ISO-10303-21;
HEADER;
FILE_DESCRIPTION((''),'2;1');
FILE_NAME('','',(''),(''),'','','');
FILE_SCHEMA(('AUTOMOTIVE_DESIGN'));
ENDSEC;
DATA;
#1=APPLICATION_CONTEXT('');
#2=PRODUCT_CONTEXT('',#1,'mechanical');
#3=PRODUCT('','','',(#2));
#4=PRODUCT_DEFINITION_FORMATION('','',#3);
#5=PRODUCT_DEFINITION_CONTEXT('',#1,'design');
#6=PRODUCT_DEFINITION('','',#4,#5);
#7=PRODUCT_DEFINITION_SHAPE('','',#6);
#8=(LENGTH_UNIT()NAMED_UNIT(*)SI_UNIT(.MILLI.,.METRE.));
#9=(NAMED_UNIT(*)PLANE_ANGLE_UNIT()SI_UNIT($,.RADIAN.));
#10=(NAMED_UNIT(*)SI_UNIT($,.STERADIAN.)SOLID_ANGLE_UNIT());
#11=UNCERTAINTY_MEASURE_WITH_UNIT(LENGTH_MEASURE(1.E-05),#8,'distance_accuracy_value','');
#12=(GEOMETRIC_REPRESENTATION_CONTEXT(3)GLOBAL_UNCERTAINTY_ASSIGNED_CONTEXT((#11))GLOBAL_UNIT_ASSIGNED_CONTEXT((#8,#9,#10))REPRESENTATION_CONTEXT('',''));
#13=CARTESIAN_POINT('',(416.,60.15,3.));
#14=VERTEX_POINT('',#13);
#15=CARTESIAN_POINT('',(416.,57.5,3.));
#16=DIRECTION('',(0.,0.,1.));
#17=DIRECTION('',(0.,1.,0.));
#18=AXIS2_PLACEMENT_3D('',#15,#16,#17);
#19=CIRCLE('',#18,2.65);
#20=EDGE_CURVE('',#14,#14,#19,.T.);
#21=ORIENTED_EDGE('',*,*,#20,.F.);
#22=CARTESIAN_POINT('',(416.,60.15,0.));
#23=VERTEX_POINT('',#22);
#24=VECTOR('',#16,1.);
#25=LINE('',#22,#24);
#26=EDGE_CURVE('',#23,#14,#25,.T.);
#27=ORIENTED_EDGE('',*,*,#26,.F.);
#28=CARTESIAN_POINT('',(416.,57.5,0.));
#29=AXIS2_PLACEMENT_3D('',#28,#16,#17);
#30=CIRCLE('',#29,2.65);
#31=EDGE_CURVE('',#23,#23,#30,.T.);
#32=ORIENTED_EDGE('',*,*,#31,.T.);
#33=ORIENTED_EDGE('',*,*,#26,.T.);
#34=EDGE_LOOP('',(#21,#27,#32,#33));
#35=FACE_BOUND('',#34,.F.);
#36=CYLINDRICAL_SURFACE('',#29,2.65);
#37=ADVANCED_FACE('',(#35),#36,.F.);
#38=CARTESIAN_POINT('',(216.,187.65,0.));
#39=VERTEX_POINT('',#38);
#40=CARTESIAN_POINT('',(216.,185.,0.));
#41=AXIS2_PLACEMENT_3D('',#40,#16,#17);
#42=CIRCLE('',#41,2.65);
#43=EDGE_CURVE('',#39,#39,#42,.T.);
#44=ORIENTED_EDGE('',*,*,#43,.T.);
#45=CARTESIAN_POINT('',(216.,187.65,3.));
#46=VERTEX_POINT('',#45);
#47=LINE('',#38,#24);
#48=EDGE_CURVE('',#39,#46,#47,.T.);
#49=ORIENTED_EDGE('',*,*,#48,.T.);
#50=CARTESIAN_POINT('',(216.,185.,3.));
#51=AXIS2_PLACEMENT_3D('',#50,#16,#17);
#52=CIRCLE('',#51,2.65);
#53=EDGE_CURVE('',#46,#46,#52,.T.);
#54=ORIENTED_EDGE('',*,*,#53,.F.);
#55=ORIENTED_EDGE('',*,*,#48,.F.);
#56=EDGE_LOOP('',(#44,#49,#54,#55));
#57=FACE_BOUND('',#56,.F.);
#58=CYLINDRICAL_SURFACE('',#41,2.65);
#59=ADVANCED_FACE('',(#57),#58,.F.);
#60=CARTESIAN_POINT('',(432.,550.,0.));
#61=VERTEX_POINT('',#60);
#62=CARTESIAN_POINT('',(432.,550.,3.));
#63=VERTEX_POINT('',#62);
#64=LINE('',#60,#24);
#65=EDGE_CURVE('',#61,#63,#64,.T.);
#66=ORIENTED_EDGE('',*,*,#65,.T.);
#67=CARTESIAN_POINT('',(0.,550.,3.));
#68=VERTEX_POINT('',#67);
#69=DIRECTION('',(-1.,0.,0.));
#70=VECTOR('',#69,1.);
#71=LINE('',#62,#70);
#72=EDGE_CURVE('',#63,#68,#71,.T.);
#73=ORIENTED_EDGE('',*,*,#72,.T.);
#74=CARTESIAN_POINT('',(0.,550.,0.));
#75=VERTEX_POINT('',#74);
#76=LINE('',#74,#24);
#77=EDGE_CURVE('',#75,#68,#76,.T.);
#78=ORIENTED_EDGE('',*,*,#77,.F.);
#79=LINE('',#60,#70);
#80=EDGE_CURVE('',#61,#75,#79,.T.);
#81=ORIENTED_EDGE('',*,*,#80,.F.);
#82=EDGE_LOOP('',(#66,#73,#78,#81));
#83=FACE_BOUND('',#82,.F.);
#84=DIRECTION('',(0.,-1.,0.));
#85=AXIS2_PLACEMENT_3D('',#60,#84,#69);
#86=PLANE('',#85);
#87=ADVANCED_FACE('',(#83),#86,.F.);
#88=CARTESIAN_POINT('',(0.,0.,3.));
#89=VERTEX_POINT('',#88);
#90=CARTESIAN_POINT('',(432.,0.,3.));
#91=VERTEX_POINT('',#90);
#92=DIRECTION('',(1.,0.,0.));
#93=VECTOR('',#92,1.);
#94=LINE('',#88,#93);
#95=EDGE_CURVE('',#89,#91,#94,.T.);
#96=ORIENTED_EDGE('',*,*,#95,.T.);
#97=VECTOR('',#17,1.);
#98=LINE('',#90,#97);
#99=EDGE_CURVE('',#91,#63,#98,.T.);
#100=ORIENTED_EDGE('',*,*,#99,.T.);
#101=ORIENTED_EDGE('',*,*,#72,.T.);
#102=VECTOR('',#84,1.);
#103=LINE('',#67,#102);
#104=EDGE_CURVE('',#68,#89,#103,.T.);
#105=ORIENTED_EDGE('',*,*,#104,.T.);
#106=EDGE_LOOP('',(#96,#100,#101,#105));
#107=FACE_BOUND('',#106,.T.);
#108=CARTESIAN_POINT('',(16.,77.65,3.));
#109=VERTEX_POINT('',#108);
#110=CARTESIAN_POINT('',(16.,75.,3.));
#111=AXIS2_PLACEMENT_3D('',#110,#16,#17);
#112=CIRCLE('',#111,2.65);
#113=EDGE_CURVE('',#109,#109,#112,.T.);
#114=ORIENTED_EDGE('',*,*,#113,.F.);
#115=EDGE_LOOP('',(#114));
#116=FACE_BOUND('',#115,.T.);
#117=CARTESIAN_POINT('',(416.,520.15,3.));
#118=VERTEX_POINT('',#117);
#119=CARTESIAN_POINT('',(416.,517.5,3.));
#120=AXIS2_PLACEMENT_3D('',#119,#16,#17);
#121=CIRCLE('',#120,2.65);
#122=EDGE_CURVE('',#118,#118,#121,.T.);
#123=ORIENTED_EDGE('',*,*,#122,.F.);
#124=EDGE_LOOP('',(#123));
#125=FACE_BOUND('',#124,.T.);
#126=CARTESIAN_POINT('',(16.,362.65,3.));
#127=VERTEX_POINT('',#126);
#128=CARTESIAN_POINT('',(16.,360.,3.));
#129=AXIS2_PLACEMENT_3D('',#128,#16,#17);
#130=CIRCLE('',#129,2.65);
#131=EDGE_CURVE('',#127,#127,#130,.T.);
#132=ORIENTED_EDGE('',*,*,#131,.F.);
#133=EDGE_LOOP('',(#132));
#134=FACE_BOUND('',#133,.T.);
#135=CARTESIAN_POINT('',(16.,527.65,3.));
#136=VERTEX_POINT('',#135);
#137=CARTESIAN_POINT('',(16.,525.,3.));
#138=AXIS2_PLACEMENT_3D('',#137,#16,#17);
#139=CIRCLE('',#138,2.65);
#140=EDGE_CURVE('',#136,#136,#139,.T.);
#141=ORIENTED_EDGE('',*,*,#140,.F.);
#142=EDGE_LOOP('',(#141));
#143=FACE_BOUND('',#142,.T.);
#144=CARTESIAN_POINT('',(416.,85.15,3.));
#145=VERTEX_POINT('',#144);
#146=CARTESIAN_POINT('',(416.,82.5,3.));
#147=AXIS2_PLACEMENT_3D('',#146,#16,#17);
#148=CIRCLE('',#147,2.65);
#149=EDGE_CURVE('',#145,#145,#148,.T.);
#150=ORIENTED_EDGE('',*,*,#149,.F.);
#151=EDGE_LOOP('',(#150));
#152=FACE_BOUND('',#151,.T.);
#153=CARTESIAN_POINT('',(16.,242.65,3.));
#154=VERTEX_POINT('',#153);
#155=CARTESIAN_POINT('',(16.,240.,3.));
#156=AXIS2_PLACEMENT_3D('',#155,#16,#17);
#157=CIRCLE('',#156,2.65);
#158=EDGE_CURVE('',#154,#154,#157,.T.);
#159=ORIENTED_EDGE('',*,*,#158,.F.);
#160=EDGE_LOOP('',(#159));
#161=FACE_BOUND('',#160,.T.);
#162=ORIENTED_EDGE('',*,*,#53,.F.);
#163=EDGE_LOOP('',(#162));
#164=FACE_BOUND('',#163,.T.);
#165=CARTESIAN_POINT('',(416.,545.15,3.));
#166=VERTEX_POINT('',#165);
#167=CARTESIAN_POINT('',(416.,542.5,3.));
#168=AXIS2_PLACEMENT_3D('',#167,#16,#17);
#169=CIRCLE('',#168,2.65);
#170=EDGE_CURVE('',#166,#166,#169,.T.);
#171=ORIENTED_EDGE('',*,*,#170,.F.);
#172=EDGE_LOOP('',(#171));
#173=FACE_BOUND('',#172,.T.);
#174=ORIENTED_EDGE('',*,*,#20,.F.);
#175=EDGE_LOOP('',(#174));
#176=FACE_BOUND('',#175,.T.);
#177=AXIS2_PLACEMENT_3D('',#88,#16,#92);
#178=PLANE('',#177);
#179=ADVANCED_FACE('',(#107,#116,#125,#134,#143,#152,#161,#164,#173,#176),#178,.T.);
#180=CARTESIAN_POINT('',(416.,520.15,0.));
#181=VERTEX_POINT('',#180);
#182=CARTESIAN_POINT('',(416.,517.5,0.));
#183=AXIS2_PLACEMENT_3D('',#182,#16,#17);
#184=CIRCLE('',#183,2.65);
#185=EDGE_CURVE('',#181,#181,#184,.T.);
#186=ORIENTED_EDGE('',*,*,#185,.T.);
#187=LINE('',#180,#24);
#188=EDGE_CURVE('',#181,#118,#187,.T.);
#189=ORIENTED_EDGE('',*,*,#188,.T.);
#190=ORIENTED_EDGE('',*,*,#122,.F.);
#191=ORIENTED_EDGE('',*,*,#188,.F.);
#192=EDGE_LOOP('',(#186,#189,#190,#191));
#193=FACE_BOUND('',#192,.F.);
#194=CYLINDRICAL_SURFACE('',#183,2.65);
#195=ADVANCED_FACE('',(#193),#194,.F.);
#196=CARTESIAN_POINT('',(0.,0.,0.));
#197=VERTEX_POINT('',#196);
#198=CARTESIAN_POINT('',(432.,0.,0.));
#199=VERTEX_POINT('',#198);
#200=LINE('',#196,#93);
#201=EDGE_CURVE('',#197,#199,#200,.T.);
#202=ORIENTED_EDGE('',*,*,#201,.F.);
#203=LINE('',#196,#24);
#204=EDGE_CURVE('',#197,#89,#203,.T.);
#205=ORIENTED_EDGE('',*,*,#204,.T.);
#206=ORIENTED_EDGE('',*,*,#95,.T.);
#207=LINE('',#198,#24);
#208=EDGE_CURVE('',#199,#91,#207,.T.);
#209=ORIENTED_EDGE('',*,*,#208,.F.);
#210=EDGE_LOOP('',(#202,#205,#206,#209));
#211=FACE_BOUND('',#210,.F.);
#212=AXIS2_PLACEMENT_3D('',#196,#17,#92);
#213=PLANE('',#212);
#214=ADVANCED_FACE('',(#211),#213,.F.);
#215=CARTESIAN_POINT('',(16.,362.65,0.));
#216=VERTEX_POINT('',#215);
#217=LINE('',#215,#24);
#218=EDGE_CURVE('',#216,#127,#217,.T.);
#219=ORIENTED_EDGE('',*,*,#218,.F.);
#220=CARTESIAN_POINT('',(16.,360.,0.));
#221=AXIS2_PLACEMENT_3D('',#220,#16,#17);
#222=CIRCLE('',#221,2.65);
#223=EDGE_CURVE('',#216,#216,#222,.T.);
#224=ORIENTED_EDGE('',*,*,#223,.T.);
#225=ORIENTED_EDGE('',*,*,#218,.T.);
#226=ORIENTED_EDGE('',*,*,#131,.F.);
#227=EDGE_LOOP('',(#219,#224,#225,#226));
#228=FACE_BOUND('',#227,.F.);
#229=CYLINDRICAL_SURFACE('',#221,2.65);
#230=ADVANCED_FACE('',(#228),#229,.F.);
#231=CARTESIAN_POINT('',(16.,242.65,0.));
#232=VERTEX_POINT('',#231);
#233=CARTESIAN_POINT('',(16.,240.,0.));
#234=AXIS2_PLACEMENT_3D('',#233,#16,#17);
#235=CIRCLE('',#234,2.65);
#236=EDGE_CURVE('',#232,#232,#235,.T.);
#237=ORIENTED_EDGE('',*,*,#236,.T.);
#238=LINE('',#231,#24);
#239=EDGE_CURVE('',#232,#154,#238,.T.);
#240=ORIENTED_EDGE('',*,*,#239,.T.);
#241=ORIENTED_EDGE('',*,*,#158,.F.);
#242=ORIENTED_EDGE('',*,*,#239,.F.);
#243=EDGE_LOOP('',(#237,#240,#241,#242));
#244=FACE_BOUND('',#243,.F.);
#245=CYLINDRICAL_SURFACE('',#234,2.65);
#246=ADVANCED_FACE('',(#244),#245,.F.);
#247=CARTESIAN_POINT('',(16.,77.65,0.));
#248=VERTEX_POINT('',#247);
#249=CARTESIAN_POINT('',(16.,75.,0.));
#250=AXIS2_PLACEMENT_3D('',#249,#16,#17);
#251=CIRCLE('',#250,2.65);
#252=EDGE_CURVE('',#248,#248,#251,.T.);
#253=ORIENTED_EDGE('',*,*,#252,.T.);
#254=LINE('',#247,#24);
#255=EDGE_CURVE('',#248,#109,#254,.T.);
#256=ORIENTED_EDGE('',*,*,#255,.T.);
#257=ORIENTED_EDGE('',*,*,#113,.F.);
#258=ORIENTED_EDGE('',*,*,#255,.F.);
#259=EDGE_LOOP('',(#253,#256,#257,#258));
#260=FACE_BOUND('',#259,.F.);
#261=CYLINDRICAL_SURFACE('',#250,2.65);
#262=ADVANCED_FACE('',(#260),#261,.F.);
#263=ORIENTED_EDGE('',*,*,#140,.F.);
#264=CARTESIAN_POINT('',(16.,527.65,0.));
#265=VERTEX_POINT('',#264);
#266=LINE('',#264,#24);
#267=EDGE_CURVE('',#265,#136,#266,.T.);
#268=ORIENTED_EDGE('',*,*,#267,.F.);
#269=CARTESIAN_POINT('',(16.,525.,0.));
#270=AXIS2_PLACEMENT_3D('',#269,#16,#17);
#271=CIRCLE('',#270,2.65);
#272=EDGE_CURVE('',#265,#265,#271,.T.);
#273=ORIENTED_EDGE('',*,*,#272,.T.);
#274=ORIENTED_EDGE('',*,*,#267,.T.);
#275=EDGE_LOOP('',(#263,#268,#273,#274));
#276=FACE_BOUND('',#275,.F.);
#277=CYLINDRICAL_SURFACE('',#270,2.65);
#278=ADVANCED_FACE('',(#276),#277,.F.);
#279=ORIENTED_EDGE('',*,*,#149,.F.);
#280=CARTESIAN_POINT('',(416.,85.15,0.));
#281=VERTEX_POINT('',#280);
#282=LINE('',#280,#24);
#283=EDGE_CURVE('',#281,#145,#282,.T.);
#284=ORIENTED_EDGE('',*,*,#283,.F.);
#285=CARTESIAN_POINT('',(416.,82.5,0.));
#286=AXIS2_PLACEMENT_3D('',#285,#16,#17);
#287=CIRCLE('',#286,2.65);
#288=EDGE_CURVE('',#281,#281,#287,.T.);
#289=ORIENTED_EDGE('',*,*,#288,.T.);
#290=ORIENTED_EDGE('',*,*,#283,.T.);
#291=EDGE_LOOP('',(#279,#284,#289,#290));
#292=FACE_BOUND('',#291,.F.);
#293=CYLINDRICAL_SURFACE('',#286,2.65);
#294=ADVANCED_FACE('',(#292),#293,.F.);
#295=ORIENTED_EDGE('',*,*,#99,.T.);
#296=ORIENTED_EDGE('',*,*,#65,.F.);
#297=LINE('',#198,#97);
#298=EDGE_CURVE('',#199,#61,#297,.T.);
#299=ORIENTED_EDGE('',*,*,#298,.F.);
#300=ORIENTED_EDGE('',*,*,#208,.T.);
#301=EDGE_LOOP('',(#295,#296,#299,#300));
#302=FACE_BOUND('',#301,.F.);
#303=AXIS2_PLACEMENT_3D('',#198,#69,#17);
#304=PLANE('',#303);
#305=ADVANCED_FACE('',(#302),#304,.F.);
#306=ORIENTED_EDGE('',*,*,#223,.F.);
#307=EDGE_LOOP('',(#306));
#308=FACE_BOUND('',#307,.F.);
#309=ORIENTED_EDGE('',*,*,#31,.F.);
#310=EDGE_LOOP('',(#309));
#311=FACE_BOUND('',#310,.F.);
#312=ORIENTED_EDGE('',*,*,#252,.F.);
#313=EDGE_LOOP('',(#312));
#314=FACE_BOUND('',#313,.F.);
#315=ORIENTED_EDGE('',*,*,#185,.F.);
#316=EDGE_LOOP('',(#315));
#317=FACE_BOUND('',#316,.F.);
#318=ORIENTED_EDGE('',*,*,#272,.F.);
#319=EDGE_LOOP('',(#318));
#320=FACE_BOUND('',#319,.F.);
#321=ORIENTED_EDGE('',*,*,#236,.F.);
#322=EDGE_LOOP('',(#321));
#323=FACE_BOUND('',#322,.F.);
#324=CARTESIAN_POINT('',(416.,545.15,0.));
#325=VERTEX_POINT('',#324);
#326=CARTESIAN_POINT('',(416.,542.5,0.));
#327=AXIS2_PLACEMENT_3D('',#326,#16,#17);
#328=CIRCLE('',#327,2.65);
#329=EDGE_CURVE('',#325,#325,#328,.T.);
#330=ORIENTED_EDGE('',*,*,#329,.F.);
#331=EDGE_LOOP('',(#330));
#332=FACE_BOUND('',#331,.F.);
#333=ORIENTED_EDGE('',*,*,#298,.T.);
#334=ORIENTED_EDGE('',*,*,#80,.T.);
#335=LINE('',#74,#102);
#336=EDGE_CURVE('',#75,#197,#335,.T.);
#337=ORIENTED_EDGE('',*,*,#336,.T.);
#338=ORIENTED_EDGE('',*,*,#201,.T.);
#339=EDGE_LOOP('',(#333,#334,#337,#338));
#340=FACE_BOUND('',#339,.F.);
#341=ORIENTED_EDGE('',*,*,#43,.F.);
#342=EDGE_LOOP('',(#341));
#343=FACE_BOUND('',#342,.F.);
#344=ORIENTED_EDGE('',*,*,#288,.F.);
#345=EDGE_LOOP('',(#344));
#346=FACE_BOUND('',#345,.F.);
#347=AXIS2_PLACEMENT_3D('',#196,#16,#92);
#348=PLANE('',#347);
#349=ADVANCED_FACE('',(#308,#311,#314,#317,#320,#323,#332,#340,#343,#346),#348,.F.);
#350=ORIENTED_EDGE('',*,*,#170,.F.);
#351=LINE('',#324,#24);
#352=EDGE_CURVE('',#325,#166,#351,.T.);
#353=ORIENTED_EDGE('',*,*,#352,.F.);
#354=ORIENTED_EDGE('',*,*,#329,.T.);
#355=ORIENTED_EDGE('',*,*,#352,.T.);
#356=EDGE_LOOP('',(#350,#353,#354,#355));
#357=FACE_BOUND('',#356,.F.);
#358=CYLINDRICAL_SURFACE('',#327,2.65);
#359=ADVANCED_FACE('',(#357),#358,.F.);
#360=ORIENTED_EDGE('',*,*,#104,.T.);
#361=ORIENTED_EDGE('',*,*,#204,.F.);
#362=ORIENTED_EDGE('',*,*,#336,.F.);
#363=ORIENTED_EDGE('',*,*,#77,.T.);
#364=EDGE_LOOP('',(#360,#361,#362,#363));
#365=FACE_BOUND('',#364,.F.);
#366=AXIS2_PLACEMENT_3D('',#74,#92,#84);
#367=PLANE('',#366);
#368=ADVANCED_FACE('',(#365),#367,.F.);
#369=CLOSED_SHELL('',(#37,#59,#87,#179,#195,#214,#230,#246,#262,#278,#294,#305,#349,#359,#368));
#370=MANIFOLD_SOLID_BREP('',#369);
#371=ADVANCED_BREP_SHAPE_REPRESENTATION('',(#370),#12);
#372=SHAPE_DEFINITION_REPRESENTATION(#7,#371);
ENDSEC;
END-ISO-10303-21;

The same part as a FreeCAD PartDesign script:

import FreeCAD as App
import Part
import Sketcher


def add_polygon(sketch, points):
    """Adds a closed chain of lines whose ends are joined by coincident constraints."""
    first, n = sketch.GeometryCount, len(points)
    for a, b in zip(points, points[1:] + points[:1]):
        sketch.addGeometry(Part.LineSegment(App.Vector(*a, 0), App.Vector(*b, 0)), False)
    for i in range(n):
        sketch.addConstraint(Sketcher.Constraint("Coincident", first + i, 2, first + (i + 1) % n, 1))

doc = App.newDocument("Part")
body = doc.addObject("PartDesign::Body", "Body")

# Sketch on XY plane
sketch1 = body.newObject("Sketcher::SketchObject", "Sketch")
sketch1.AttachmentSupport = (doc.getObject("XY_Plane"), [""])
sketch1.MapMode = "FlatFace"
add_polygon(sketch1, [(0, 550), (0, 0), (432, 0), (432, 550)])  # lines 0-3
sketch1.addConstraint(Sketcher.Constraint("Vertical", 0))
sketch1.addConstraint(Sketcher.Constraint("Horizontal", 1))
sketch1.addConstraint(Sketcher.Constraint("Vertical", 2))
sketch1.addConstraint(Sketcher.Constraint("Horizontal", 3))
sketch1.addConstraint(Sketcher.Constraint("Coincident", 0, 2, -1, 1))
sketch1.addConstraint(Sketcher.Constraint("DistanceX", 1, 1, 1, 2, 432.0))
sketch1.addConstraint(Sketcher.Constraint("DistanceY", 0, 2, 0, 1, 550.0))
pad1 = body.newObject("PartDesign::Pad", "Pad")
pad1.Profile = sketch1
pad1.Length = 3

# Sketch on XY plane
sketch2 = body.newObject("Sketcher::SketchObject", "Sketch001")
sketch2.AttachmentSupport = (doc.getObject("XY_Plane"), [""])
sketch2.MapMode = "FlatFace"
sketch2.addGeometry(Part.Circle(App.Vector(416, 542.5, 0), App.Vector(0, 0, 1), 2.65), False)
sketch2.addGeometry(Part.Circle(App.Vector(416, 517.5, 0), App.Vector(0, 0, 1), 2.65), False)
sketch2.addGeometry(Part.Circle(App.Vector(416, 82.5, 0), App.Vector(0, 0, 1), 2.65), False)
sketch2.addGeometry(Part.Circle(App.Vector(416, 57.5, 0), App.Vector(0, 0, 1), 2.65), False)
sketch2.addGeometry(Part.Circle(App.Vector(16, 360, 0), App.Vector(0, 0, 1), 2.65), False)
sketch2.addGeometry(Part.Circle(App.Vector(16, 240, 0), App.Vector(0, 0, 1), 2.65), False)
sketch2.addGeometry(Part.Circle(App.Vector(216, 185, 0), App.Vector(0, 0, 1), 2.65), False)
sketch2.addGeometry(Part.Circle(App.Vector(16, 525, 0), App.Vector(0, 0, 1), 2.65), False)
sketch2.addGeometry(Part.Circle(App.Vector(16, 75, 0), App.Vector(0, 0, 1), 2.65), False)
sketch2.addConstraint(Sketcher.Constraint("Equal", 0, 1))
sketch2.addConstraint(Sketcher.Constraint("Equal", 1, 2))
sketch2.addConstraint(Sketcher.Constraint("Equal", 2, 3))
sketch2.addConstraint(Sketcher.Constraint("Equal", 3, 4))
sketch2.addConstraint(Sketcher.Constraint("Equal", 4, 5))
sketch2.addConstraint(Sketcher.Constraint("Equal", 5, 6))
sketch2.addConstraint(Sketcher.Constraint("Equal", 6, 7))
sketch2.addConstraint(Sketcher.Constraint("Equal", 7, 8))
sketch2.addConstraint(Sketcher.Constraint("Vertical", 0, 3, 1, 3))
sketch2.addConstraint(Sketcher.Constraint("Vertical", 1, 3, 2, 3))
sketch2.addConstraint(Sketcher.Constraint("Vertical", 2, 3, 3, 3))
sketch2.addConstraint(Sketcher.Constraint("Vertical", 4, 3, 5, 3))
sketch2.addConstraint(Sketcher.Constraint("Vertical", 5, 3, 7, 3))
sketch2.addConstraint(Sketcher.Constraint("Vertical", 7, 3, 8, 3))
sketch2.addConstraint(Sketcher.Constraint("Diameter", 0, 5.3))
sketch2.addConstraint(Sketcher.Constraint("DistanceX", -1, 1, 0, 3, 416.0))
sketch2.addConstraint(Sketcher.Constraint("DistanceX", -1, 1, 4, 3, 16.0))
sketch2.addConstraint(Sketcher.Constraint("DistanceY", -1, 1, 4, 3, 360.0))
sketch2.addConstraint(Sketcher.Constraint("DistanceY", -1, 1, 5, 3, 240.0))
sketch2.addConstraint(Sketcher.Constraint("DistanceX", -1, 1, 6, 3, 216.0))
sketch2.addConstraint(Sketcher.Constraint("DistanceY", -1, 1, 6, 3, 185.0))
sketch2.addConstraint(Sketcher.Constraint("DistanceY", -1, 1, 7, 3, 525.0))
sketch2.addConstraint(Sketcher.Constraint("DistanceY", -1, 1, 8, 3, 75.0))
sketch2.addConstraint(Sketcher.Constraint("DistanceY", 1, 3, 0, 3, 25.0))
sketch2.addConstraint(Sketcher.Constraint("DistanceY", 2, 3, 1, 3, 435.0))
sketch2.addConstraint(Sketcher.Constraint("DistanceY", 3, 3, 2, 3, 25.0))
sketch2.addConstraint(Sketcher.Constraint("DistanceY", -1, 1, 0, 3, 542.5))
doc.recompute()
hole = body.newObject("PartDesign::Hole", "Hole")
hole.Profile = sketch2
hole.ThreadType = "None"
hole.Diameter = 5.3
hole.DepthType = "ThroughAll"
hole.Reversed = True

doc.recompute()
